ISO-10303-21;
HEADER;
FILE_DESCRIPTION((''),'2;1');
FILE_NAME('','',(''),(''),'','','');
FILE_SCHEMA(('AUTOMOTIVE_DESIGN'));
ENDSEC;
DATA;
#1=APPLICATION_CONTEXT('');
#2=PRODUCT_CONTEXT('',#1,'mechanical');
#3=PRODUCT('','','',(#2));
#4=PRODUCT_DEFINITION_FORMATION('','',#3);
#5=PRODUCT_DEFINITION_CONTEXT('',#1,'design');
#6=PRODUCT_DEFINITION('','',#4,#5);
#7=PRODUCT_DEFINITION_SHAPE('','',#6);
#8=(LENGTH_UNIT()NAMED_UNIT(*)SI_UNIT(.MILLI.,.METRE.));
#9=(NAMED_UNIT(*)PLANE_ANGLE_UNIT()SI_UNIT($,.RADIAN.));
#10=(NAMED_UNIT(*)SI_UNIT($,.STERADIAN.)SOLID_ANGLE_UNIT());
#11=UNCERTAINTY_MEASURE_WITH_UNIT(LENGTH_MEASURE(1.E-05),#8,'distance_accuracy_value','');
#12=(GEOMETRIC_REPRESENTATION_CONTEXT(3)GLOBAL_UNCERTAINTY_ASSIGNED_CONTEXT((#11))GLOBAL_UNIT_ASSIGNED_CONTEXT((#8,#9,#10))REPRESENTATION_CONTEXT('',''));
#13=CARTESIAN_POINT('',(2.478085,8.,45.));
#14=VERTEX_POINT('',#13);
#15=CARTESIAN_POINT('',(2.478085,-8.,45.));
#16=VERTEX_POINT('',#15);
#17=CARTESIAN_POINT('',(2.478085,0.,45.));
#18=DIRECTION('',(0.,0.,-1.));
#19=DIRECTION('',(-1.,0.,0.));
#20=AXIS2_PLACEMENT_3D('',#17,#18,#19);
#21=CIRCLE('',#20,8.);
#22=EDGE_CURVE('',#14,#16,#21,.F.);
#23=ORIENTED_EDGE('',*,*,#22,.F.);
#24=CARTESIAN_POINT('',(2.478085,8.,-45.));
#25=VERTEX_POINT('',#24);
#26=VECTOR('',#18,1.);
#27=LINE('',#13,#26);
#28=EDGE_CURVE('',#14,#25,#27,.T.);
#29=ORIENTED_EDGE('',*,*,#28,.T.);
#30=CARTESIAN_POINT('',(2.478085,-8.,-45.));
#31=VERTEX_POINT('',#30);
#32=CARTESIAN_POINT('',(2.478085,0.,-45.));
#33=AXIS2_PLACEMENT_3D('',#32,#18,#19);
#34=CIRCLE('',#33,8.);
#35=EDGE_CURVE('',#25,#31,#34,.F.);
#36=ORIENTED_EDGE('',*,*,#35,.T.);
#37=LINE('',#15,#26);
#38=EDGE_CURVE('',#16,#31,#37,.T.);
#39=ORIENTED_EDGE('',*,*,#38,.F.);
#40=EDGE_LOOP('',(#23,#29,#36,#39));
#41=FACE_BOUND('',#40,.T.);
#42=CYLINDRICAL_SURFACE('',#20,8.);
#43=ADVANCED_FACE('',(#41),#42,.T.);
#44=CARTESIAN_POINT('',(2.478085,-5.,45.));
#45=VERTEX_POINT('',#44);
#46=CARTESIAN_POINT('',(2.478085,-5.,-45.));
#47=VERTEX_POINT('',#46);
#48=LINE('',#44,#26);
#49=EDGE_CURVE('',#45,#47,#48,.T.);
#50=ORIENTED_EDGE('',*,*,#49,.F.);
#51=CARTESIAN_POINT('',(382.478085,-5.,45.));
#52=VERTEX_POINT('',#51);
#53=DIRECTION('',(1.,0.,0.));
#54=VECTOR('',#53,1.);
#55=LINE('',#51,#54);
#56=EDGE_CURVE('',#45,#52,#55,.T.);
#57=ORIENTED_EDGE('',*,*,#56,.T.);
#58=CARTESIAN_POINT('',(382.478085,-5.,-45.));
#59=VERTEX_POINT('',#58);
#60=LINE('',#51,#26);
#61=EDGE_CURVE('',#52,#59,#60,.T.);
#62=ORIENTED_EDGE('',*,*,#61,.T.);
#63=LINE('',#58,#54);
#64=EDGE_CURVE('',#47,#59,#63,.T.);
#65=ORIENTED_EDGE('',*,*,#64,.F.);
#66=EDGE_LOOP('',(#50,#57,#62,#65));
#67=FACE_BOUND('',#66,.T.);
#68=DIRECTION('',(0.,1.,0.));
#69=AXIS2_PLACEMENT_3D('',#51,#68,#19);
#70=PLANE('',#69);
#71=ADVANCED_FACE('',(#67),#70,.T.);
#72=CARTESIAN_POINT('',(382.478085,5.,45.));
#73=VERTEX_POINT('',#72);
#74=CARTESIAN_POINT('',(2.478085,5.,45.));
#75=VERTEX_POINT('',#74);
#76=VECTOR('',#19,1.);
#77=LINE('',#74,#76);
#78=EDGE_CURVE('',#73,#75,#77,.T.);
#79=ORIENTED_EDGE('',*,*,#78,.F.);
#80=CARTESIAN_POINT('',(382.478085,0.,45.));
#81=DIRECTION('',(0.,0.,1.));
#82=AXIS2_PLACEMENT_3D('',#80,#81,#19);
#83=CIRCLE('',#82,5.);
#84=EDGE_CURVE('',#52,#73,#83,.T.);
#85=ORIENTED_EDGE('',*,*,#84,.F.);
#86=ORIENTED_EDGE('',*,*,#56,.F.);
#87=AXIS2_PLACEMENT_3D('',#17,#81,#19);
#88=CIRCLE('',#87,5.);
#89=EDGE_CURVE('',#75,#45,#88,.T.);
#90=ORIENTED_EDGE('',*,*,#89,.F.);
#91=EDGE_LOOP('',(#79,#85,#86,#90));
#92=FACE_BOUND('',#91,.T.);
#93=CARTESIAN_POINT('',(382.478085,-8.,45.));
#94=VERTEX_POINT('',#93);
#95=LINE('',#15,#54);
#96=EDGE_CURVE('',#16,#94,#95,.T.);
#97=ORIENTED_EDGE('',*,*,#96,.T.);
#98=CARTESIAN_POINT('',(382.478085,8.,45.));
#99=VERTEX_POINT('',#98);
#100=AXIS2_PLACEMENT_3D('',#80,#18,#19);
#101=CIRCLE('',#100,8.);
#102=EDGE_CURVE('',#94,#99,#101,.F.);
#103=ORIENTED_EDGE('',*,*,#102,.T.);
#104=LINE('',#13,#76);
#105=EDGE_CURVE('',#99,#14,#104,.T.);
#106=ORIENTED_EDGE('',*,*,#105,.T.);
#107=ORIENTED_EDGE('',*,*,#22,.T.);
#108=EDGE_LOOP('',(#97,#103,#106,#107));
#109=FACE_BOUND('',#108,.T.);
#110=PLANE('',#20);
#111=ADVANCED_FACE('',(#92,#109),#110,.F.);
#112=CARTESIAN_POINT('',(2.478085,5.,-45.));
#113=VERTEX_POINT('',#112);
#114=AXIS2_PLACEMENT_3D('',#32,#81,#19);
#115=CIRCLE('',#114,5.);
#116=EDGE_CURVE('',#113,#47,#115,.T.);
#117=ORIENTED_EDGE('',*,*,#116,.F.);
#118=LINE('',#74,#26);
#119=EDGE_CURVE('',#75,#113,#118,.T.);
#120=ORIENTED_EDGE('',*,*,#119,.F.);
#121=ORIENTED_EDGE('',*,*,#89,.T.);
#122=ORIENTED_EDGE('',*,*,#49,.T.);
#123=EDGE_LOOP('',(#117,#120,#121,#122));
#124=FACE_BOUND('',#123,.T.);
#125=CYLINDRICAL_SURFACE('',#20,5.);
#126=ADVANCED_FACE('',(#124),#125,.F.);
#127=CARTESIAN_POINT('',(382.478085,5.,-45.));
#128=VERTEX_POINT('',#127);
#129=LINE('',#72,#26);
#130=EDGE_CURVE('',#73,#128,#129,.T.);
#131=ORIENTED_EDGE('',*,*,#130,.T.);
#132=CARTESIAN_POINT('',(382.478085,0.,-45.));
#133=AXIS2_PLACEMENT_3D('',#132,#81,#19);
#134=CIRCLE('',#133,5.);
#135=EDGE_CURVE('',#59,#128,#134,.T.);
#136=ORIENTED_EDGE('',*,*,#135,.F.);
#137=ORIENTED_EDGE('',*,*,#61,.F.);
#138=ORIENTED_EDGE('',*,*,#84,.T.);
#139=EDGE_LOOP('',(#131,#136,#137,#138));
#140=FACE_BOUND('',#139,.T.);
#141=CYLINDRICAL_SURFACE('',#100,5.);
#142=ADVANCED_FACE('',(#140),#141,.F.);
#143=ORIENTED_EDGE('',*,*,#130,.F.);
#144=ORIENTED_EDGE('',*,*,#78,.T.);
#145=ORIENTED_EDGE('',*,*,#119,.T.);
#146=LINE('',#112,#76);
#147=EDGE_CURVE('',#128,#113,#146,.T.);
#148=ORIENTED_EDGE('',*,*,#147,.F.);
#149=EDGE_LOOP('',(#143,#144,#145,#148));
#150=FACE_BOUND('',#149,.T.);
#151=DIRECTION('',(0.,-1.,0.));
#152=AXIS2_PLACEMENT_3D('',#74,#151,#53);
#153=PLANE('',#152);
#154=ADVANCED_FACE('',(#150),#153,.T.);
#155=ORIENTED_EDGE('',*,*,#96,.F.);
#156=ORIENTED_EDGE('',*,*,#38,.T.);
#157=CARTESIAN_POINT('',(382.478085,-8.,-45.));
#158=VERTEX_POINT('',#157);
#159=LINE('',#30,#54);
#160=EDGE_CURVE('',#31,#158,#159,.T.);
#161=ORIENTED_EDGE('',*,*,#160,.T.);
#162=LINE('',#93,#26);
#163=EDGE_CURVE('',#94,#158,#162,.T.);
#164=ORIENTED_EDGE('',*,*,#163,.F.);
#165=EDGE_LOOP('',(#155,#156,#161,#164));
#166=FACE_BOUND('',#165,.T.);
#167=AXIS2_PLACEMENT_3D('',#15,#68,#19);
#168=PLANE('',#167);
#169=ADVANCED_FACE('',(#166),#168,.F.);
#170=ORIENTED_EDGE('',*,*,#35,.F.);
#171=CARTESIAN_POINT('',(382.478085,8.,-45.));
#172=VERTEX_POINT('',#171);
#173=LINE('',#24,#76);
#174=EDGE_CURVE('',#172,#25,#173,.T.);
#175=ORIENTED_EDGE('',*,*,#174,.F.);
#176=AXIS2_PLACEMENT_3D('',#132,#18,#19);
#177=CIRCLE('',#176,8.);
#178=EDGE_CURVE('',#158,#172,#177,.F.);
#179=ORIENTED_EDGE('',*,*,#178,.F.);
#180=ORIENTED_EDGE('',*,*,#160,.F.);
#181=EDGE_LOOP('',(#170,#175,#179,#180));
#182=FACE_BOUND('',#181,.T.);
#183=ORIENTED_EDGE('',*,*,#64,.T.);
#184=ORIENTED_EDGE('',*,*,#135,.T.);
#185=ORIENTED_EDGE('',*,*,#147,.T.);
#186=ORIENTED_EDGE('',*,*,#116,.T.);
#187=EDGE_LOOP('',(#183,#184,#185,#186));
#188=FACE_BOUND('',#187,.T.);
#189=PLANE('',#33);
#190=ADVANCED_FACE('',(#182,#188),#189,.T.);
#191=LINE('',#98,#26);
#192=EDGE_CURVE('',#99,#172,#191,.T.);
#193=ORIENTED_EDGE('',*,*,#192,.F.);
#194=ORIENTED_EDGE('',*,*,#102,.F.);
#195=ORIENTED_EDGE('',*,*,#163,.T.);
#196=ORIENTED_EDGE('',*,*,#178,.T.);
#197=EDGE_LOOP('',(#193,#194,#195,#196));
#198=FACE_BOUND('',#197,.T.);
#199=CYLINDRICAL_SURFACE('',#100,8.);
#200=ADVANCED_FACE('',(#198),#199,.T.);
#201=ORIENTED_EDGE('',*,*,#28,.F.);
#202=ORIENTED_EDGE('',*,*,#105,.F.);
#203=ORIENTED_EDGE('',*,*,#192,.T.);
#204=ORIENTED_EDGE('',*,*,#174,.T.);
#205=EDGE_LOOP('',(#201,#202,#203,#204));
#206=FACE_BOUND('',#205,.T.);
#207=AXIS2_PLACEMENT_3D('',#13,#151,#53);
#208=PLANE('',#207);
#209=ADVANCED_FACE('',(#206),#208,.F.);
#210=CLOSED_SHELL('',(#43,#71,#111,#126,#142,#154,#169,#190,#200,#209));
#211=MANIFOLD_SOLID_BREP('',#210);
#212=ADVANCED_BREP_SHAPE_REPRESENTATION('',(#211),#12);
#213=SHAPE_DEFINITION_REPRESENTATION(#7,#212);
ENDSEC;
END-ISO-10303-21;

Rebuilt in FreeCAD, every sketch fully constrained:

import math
import FreeCAD as App
import Part
import Sketcher
from FreeCAD import Vector
Q = App.Units.Quantity

doc = App.newDocument("Part")
body = doc.addObject("PartDesign::Body", "Body")

sketch1 = doc.addObject("Sketcher::SketchObject", "Sketch")
body.addObject(sketch1)
sketch1.AttachmentSupport = (doc.XY_Plane, [""])
sketch1.MapMode = "FlatFace"
sketch1.addGeometry([
    Part.LineSegment(Vector(2.478085, -8, 0), Vector(382.478085, -8, 0)),
    Part.ArcOfCircle(Part.Circle(Vector(382.478085, 0, 0), Vector(0, 0, 1), 8), math.radians(-90), math.radians(90)),
    Part.LineSegment(Vector(382.478085, 8, 0), Vector(2.478085, 8, 0)),
    Part.ArcOfCircle(Part.Circle(Vector(2.478085, 0, 0), Vector(0, 0, 1), 8), math.radians(90), math.radians(270)),
    Part.LineSegment(Vector(382.478085, -5, 0), Vector(2.478085, -5, 0)),
    Part.ArcOfCircle(Part.Circle(Vector(2.478085, 0, 0), Vector(0, 0, 1), 5), math.radians(90), math.radians(270)),
    Part.LineSegment(Vector(2.478085, 5, 0), Vector(382.478085, 5, 0)),
    Part.ArcOfCircle(Part.Circle(Vector(382.478085, 0, 0), Vector(0, 0, 1), 5), math.radians(-90), math.radians(90)),
], False)
sketch1.addConstraint([
    Sketcher.Constraint("Tangent", 0, 2, 1, 1),
    Sketcher.Constraint("Tangent", 1, 2, 2, 1),
    Sketcher.Constraint("Tangent", 2, 2, 3, 1),
    Sketcher.Constraint("Tangent", 3, 2, 0, 1),
    Sketcher.Constraint("Tangent", 4, 2, 5, 2),
    Sketcher.Constraint("Tangent", 5, 1, 6, 1),
    Sketcher.Constraint("Tangent", 6, 2, 7, 2),
    Sketcher.Constraint("Tangent", 7, 1, 4, 1),
    Sketcher.Constraint("Horizontal", 0),
    Sketcher.Constraint("Horizontal", 2),
    Sketcher.Constraint("Horizontal", 4),
    Sketcher.Constraint("Horizontal", 6),
    Sketcher.Constraint("Coincident", 5, 3, 3, 3),
    Sketcher.Constraint("PointOnObject", 1, 3, -1),
    Sketcher.Constraint("Vertical", 7, 3, 0, 2),
    Sketcher.Constraint("Radius", 1, Q("8 mm")),
    Sketcher.Constraint("Radius", 5, Q("5 mm")),
    Sketcher.Constraint("DistanceX", 0, 1, 0, 2, Q("380 mm")),
    Sketcher.Constraint("DistanceX", -1, 1, 1, 3, Q("382.478085 mm")),
])
pad1 = doc.addObject("PartDesign::Pad", "Pad")
body.addObject(pad1)
pad1.Profile = sketch1
pad1.Length = 90
pad1.Midplane = True

doc.recompute()
